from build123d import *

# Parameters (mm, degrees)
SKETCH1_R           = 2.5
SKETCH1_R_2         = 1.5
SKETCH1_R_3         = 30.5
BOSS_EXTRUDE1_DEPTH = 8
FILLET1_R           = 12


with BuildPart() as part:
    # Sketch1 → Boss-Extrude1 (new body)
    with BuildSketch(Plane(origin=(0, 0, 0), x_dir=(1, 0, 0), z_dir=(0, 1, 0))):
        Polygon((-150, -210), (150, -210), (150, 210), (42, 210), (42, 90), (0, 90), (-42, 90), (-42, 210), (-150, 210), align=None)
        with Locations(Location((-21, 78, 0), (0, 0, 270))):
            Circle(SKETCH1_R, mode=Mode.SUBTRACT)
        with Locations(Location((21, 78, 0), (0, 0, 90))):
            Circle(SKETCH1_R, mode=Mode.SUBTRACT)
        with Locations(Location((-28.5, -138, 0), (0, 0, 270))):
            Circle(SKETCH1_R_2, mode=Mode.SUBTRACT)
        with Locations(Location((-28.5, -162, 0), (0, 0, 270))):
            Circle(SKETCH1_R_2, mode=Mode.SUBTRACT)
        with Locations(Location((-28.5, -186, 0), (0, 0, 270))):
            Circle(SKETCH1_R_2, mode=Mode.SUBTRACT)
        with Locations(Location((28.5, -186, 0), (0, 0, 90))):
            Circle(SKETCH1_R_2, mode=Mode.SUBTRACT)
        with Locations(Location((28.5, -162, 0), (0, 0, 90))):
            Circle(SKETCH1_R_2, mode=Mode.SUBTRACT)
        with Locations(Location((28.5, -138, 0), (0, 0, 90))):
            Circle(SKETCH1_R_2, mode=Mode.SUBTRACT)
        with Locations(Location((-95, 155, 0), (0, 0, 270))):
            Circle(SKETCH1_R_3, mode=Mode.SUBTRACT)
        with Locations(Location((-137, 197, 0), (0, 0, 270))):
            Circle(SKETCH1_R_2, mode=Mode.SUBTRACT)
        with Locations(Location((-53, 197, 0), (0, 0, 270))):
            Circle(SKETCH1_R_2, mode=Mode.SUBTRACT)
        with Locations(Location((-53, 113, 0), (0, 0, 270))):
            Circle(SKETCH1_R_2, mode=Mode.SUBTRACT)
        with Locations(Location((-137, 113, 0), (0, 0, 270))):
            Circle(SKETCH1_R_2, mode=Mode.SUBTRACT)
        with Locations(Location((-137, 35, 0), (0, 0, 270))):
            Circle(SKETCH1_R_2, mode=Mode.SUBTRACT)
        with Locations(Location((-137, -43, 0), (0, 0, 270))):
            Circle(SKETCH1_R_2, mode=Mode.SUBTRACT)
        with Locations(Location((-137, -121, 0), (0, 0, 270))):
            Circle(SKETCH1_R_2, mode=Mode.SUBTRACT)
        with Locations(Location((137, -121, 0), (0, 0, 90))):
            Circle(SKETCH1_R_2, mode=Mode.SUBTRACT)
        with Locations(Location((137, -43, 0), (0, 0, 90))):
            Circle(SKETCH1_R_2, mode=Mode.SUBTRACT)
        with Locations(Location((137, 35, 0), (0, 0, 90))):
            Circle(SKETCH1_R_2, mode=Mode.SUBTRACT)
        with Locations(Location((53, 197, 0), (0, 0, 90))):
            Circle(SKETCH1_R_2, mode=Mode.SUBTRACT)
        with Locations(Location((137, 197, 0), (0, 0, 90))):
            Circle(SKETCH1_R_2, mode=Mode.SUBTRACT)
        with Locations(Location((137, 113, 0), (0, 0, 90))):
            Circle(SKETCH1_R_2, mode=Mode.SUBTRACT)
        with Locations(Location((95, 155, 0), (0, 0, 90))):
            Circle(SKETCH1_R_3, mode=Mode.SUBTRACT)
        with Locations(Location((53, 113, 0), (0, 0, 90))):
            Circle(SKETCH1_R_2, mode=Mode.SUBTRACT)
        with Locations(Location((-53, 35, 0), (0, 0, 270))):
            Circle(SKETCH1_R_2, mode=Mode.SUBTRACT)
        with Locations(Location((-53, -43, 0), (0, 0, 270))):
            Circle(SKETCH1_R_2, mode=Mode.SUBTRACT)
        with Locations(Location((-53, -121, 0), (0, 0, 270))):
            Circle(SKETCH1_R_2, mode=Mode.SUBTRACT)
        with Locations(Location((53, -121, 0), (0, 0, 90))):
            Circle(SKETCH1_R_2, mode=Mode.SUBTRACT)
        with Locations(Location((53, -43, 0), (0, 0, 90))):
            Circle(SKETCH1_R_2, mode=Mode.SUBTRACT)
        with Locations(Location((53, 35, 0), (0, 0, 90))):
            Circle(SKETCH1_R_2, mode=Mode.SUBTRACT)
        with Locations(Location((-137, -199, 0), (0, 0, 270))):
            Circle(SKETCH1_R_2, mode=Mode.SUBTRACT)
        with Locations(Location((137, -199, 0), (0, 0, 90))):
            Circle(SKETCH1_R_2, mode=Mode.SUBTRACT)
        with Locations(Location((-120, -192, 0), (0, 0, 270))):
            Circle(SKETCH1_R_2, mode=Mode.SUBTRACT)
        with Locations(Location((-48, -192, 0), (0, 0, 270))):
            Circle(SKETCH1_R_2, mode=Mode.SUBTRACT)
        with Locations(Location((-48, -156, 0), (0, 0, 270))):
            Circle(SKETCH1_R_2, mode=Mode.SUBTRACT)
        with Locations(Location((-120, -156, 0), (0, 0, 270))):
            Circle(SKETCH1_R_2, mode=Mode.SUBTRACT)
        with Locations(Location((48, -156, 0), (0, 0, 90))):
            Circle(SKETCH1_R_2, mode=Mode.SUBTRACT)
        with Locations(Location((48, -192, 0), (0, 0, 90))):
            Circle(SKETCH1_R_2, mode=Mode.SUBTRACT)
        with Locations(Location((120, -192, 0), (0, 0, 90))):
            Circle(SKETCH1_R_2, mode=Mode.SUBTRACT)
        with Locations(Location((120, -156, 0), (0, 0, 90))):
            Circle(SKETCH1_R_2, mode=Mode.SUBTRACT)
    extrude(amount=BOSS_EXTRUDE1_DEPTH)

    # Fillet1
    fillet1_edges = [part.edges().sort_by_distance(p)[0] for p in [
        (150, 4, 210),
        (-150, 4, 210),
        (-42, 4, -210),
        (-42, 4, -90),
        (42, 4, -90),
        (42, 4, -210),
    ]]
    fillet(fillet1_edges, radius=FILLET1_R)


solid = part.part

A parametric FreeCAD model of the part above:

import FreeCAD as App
import Part
import Sketcher

V = App.Vector


def edges_at(feature, points):
    """Names of the edges that pass closest to the given points."""
    edges = feature.Shape.Edges
    near = lambda p: min(range(len(edges)), key=lambda i: edges[i].distToShape(Part.Vertex(*p))[0])
    return sorted({f"Edge{near(p) + 1}" for p in points})

doc = App.newDocument("Part")
body = doc.addObject("PartDesign::Body", "Body")

sketch1 = body.newObject("Sketcher::SketchObject", "Sketch")
sketch1.AttachmentSupport = (doc.getObject("XZ_Plane"), [""])
sketch1.MapMode = "FlatFace"
sketch1.addGeometry([
    Part.LineSegment(V(-150, 210, 0), V(150, 210, 0)),
    Part.LineSegment(V(150, 210, 0), V(150, -210, 0)),
    Part.LineSegment(V(150, -210, 0), V(42, -210, 0)),
    Part.LineSegment(V(42, -210, 0), V(42, -90, 0)),
    Part.LineSegment(V(42, -90, 0), V(-42, -90, 0)),
    Part.LineSegment(V(-42, -90, 0), V(-42, -210, 0)),
    Part.LineSegment(V(-42, -210, 0), V(-150, -210, 0)),
    Part.LineSegment(V(-150, -210, 0), V(-150, 210, 0)),
    Part.Circle(V(-137, 199, 0), V(0, 0, 1), 1.5),
    Part.Circle(V(-120, 192, 0), V(0, 0, 1), 1.5),
    Part.Circle(V(-120, 156, 0), V(0, 0, 1), 1.5),
    Part.Circle(V(-137, 121, 0), V(0, 0, 1), 1.5),
    Part.Circle(V(-48, 192, 0), V(0, 0, 1), 1.5),
    Part.Circle(V(-48, 156, 0), V(0, 0, 1), 1.5),
    Part.Circle(V(-28.5, 186, 0), V(0, 0, 1), 1.5),
    Part.Circle(V(-28.5, 162, 0), V(0, 0, 1), 1.5),
    Part.Circle(V(-53, 121, 0), V(0, 0, 1), 1.5),
    Part.Circle(V(-28.5, 138, 0), V(0, 0, 1), 1.5),
    Part.Circle(V(-137, 43, 0), V(0, 0, 1), 1.5),
    Part.Circle(V(-53, 43, 0), V(0, 0, 1), 1.5),
    Part.Circle(V(28.5, 186, 0), V(0, 0, 1), 1.5),
    Part.Circle(V(28.5, 162, 0), V(0, 0, 1), 1.5),
    Part.Circle(V(48, 192, 0), V(0, 0, 1), 1.5),
    Part.Circle(V(48, 156, 0), V(0, 0, 1), 1.5),
    Part.Circle(V(28.5, 138, 0), V(0, 0, 1), 1.5),
    Part.Circle(V(53, 121, 0), V(0, 0, 1), 1.5),
    Part.Circle(V(120, 192, 0), V(0, 0, 1), 1.5),
    Part.Circle(V(137, 199, 0), V(0, 0, 1), 1.5),
    Part.Circle(V(120, 156, 0), V(0, 0, 1), 1.5),
    Part.Circle(V(137, 121, 0), V(0, 0, 1), 1.5),
    Part.Circle(V(53, 43, 0), V(0, 0, 1), 1.5),
    Part.Circle(V(137, 43, 0), V(0, 0, 1), 1.5),
    Part.Circle(V(-137, -35, 0), V(0, 0, 1), 1.5),
    Part.Circle(V(-53, -35, 0), V(0, 0, 1), 1.5),
    Part.Circle(V(-21, -78, 0), V(0, 0, 1), 2.5),
    Part.Circle(V(-137, -113, 0), V(0, 0, 1), 1.5),
    Part.Circle(V(-137, -197, 0), V(0, 0, 1), 1.5),
    Part.Circle(V(-95, -155, 0), V(0, 0, 1), 30.5),
    Part.Circle(V(-53, -113, 0), V(0, 0, 1), 1.5),
    Part.Circle(V(-53, -197, 0), V(0, 0, 1), 1.5),
    Part.Circle(V(53, -35, 0), V(0, 0, 1), 1.5),
    Part.Circle(V(21, -78, 0), V(0, 0, 1), 2.5),
    Part.Circle(V(137, -35, 0), V(0, 0, 1), 1.5),
    Part.Circle(V(53, -113, 0), V(0, 0, 1), 1.5),
    Part.Circle(V(53, -197, 0), V(0, 0, 1), 1.5),
    Part.Circle(V(137, -113, 0), V(0, 0, 1), 1.5),
    Part.Circle(V(95, -155, 0), V(0, 0, 1), 30.5),
    Part.Circle(V(137, -197, 0), V(0, 0, 1), 1.5),
], False)
sketch1.addConstraint([
    Sketcher.Constraint("Coincident", 0, 2, 1, 1),
    Sketcher.Constraint("Coincident", 1, 2, 2, 1),
    Sketcher.Constraint("Coincident", 2, 2, 3, 1),
    Sketcher.Constraint("Coincident", 3, 2, 4, 1),
    Sketcher.Constraint("Coincident", 4, 2, 5, 1),
    Sketcher.Constraint("Coincident", 5, 2, 6, 1),
    Sketcher.Constraint("Coincident", 6, 2, 7, 1),
    Sketcher.Constraint("Coincident", 7, 2, 0, 1),
    Sketcher.Constraint("Horizontal", 0),
    Sketcher.Constraint("Vertical", 1),
    Sketcher.Constraint("Horizontal", 2),
    Sketcher.Constraint("Vertical", 3),
    Sketcher.Constraint("Horizontal", 4),
    Sketcher.Constraint("Vertical", 5),
    Sketcher.Constraint("Horizontal", 6),
    Sketcher.Constraint("Vertical", 7),
    Sketcher.Constraint("Equal", 8, 9),
    Sketcher.Constraint("Equal", 9, 10),
    Sketcher.Constraint("Equal", 10, 11),
    Sketcher.Constraint("Equal", 11, 12),
    Sketcher.Constraint("Equal", 12, 13),
    Sketcher.Constraint("Equal", 13, 14),
    Sketcher.Constraint("Equal", 14, 15),
    Sketcher.Constraint("Equal", 15, 16),
    Sketcher.Constraint("Equal", 16, 17),
    Sketcher.Constraint("Equal", 17, 18),
    Sketcher.Constraint("Equal", 18, 19),
    Sketcher.Constraint("Equal", 19, 20),
    Sketcher.Constraint("Equal", 20, 21),
    Sketcher.Constraint("Equal", 21, 22),
    Sketcher.Constraint("Equal", 22, 23),
    Sketcher.Constraint("Equal", 23, 24),
    Sketcher.Constraint("Equal", 24, 25),
    Sketcher.Constraint("Equal", 25, 26),
    Sketcher.Constraint("Equal", 26, 27),
    Sketcher.Constraint("Equal", 27, 28),
    Sketcher.Constraint("Equal", 28, 29),
    Sketcher.Constraint("Equal", 29, 30),
    Sketcher.Constraint("Equal", 30, 31),
    Sketcher.Constraint("Equal", 31, 32),
    Sketcher.Constraint("Equal", 32, 33),
    Sketcher.Constraint("Equal", 33, 35),
    Sketcher.Constraint("Equal", 35, 36),
    Sketcher.Constraint("Equal", 36, 38),
    Sketcher.Constraint("Equal", 38, 39),
    Sketcher.Constraint("Equal", 39, 40),
    Sketcher.Constraint("Equal", 34, 41),
    Sketcher.Constraint("Equal", 40, 42),
    Sketcher.Constraint("Equal", 42, 43),
    Sketcher.Constraint("Equal", 43, 44),
    Sketcher.Constraint("Equal", 44, 45),
    Sketcher.Constraint("Equal", 37, 46),
    Sketcher.Constraint("Equal", 45, 47),
    Sketcher.Constraint("Symmetric", 0, 2, 6, 2, -1, 1),
    Sketcher.Constraint("Symmetric", 14, 3, 20, 3, -2),
    Sketcher.Constraint("Symmetric", 15, 3, 21, 3, -2),
    Sketcher.Constraint("Symmetric", 12, 3, 22, 3, -2),
    Sketcher.Constraint("Symmetric", 13, 3, 23, 3, -2),
    Sketcher.Constraint("Symmetric", 17, 3, 24, 3, -2),
    Sketcher.Constraint("Symmetric", 16, 3, 25, 3, -2),
    Sketcher.Constraint("Symmetric", 9, 3, 26, 3, -2),
    Sketcher.Constraint("Symmetric", 8, 3, 27, 3, -2),
    Sketcher.Constraint("Symmetric", 10, 3, 28, 3, -2),
    Sketcher.Constraint("Symmetric", 11, 3, 29, 3, -2),
    Sketcher.Constraint("Symmetric", 19, 3, 30, 3, -2),
    Sketcher.Constraint("Symmetric", 18, 3, 31, 3, -2),
    Sketcher.Constraint("Symmetric", 33, 3, 40, 3, -2),
    Sketcher.Constraint("Symmetric", 34, 3, 41, 3, -2),
    Sketcher.Constraint("Symmetric", 32, 3, 42, 3, -2),
    Sketcher.Constraint("Symmetric", 38, 3, 43, 3, -2),
    Sketcher.Constraint("Symmetric", 39, 3, 44, 3, -2),
    Sketcher.Constraint("Symmetric", 35, 3, 45, 3, -2),
    Sketcher.Constraint("Symmetric", 37, 3, 46, 3, -2),
    Sketcher.Constraint("Symmetric", 36, 3, 47, 3, -2),
    Sketcher.Constraint("Symmetric", 2, 2, 5, 2, -2),
    Sketcher.Constraint("Horizontal", 9, 3, 12, 3),
    Sketcher.Constraint("Horizontal", 10, 3, 13, 3),
    Sketcher.Constraint("Horizontal", 11, 3, 16, 3),
    Sketcher.Constraint("Horizontal", 18, 3, 19, 3),
    Sketcher.Constraint("Horizontal", 32, 3, 33, 3),
    Sketcher.Constraint("Horizontal", 35, 3, 38, 3),
    Sketcher.Constraint("Horizontal", 36, 3, 39, 3),
    Sketcher.Constraint("Vertical", 9, 3, 10, 3),
    Sketcher.Constraint("Vertical", 8, 3, 11, 3),
    Sketcher.Constraint("Vertical", 12, 3, 13, 3),
    Sketcher.Constraint("Vertical", 14, 3, 15, 3),
    Sketcher.Constraint("Vertical", 15, 3, 17, 3),
    Sketcher.Constraint("Vertical", 11, 3, 18, 3),
    Sketcher.Constraint("Vertical", 16, 3, 19, 3),
    Sketcher.Constraint("Vertical", 18, 3, 32, 3),
    Sketcher.Constraint("Vertical", 19, 3, 33, 3),
    Sketcher.Constraint("Vertical", 32, 3, 35, 3),
    Sketcher.Constraint("Vertical", 35, 3, 36, 3),
    Sketcher.Constraint("Vertical", 33, 3, 38, 3),
    Sketcher.Constraint("Vertical", 38, 3, 39, 3),
    Sketcher.Constraint("Diameter", 8, 3.0),
    Sketcher.Constraint("Diameter", 34, 5.0),
    Sketcher.Constraint("Diameter", 37, 61.0),
    Sketcher.Constraint("DistanceX", 0, 1, 0, 2, 300.0),
    Sketcher.Constraint("DistanceX", 2, 2, 2, 1, 108.0),
    Sketcher.Constraint("DistanceY", 1, 2, 1, 1, 420.0),
    Sketcher.Constraint("DistanceY", 3, 1, 3, 2, 120.0),
    Sketcher.Constraint("DistanceX", 8, 3, -1, 1, 137.0),
    Sketcher.Constraint("DistanceY", -1, 1, 8, 3, 199.0),
    Sketcher.Constraint("DistanceX", 9, 3, -1, 1, 120.0),
    Sketcher.Constraint("DistanceY", -1, 1, 9, 3, 192.0),
    Sketcher.Constraint("DistanceY", -1, 1, 10, 3, 156.0),
    Sketcher.Constraint("DistanceY", -1, 1, 11, 3, 121.0),
    Sketcher.Constraint("DistanceX", 12, 3, -1, 1, 48.0),
    Sketcher.Constraint("DistanceY", -1, 1, 14, 3, 186.0),
    Sketcher.Constraint("DistanceY", -1, 1, 15, 3, 162.0),
    Sketcher.Constraint("DistanceX", 16, 3, -1, 1, 53.0),
    Sketcher.Constraint("DistanceY", -1, 1, 17, 3, 138.0),
    Sketcher.Constraint("DistanceY", -1, 1, 18, 3, 43.0),
    Sketcher.Constraint("DistanceY", 32, 3, -1, 1, 35.0),
    Sketcher.Constraint("DistanceX", 34, 3, -1, 1, 21.0),
    Sketcher.Constraint("DistanceY", 34, 3, -1, 1, 78.0),
    Sketcher.Constraint("DistanceY", 35, 3, -1, 1, 113.0),
    Sketcher.Constraint("DistanceY", 36, 3, -1, 1, 197.0),
    Sketcher.Constraint("DistanceX", 37, 3, -1, 1, 95.0),
    Sketcher.Constraint("DistanceY", 37, 3, -1, 1, 155.0),
    Sketcher.Constraint("DistanceX", 14, 3, 20, 3, 57.0),
])
pad1 = body.newObject("PartDesign::Pad", "Pad")
pad1.Profile = sketch1
pad1.Length = 8
pad1.Reversed = True
doc.recompute()

fillet = body.newObject("PartDesign::Fillet", "Fillet")
fillet.Base = (pad1, edges_at(pad1, [
    (150, 4, 210),
    (-150, 4, 210),
    (-42, 4, -210),
    (-42, 4, -90),
    (42, 4, -90),
    (42, 4, -210),
]))
fillet.Radius = 12

doc.recompute()
